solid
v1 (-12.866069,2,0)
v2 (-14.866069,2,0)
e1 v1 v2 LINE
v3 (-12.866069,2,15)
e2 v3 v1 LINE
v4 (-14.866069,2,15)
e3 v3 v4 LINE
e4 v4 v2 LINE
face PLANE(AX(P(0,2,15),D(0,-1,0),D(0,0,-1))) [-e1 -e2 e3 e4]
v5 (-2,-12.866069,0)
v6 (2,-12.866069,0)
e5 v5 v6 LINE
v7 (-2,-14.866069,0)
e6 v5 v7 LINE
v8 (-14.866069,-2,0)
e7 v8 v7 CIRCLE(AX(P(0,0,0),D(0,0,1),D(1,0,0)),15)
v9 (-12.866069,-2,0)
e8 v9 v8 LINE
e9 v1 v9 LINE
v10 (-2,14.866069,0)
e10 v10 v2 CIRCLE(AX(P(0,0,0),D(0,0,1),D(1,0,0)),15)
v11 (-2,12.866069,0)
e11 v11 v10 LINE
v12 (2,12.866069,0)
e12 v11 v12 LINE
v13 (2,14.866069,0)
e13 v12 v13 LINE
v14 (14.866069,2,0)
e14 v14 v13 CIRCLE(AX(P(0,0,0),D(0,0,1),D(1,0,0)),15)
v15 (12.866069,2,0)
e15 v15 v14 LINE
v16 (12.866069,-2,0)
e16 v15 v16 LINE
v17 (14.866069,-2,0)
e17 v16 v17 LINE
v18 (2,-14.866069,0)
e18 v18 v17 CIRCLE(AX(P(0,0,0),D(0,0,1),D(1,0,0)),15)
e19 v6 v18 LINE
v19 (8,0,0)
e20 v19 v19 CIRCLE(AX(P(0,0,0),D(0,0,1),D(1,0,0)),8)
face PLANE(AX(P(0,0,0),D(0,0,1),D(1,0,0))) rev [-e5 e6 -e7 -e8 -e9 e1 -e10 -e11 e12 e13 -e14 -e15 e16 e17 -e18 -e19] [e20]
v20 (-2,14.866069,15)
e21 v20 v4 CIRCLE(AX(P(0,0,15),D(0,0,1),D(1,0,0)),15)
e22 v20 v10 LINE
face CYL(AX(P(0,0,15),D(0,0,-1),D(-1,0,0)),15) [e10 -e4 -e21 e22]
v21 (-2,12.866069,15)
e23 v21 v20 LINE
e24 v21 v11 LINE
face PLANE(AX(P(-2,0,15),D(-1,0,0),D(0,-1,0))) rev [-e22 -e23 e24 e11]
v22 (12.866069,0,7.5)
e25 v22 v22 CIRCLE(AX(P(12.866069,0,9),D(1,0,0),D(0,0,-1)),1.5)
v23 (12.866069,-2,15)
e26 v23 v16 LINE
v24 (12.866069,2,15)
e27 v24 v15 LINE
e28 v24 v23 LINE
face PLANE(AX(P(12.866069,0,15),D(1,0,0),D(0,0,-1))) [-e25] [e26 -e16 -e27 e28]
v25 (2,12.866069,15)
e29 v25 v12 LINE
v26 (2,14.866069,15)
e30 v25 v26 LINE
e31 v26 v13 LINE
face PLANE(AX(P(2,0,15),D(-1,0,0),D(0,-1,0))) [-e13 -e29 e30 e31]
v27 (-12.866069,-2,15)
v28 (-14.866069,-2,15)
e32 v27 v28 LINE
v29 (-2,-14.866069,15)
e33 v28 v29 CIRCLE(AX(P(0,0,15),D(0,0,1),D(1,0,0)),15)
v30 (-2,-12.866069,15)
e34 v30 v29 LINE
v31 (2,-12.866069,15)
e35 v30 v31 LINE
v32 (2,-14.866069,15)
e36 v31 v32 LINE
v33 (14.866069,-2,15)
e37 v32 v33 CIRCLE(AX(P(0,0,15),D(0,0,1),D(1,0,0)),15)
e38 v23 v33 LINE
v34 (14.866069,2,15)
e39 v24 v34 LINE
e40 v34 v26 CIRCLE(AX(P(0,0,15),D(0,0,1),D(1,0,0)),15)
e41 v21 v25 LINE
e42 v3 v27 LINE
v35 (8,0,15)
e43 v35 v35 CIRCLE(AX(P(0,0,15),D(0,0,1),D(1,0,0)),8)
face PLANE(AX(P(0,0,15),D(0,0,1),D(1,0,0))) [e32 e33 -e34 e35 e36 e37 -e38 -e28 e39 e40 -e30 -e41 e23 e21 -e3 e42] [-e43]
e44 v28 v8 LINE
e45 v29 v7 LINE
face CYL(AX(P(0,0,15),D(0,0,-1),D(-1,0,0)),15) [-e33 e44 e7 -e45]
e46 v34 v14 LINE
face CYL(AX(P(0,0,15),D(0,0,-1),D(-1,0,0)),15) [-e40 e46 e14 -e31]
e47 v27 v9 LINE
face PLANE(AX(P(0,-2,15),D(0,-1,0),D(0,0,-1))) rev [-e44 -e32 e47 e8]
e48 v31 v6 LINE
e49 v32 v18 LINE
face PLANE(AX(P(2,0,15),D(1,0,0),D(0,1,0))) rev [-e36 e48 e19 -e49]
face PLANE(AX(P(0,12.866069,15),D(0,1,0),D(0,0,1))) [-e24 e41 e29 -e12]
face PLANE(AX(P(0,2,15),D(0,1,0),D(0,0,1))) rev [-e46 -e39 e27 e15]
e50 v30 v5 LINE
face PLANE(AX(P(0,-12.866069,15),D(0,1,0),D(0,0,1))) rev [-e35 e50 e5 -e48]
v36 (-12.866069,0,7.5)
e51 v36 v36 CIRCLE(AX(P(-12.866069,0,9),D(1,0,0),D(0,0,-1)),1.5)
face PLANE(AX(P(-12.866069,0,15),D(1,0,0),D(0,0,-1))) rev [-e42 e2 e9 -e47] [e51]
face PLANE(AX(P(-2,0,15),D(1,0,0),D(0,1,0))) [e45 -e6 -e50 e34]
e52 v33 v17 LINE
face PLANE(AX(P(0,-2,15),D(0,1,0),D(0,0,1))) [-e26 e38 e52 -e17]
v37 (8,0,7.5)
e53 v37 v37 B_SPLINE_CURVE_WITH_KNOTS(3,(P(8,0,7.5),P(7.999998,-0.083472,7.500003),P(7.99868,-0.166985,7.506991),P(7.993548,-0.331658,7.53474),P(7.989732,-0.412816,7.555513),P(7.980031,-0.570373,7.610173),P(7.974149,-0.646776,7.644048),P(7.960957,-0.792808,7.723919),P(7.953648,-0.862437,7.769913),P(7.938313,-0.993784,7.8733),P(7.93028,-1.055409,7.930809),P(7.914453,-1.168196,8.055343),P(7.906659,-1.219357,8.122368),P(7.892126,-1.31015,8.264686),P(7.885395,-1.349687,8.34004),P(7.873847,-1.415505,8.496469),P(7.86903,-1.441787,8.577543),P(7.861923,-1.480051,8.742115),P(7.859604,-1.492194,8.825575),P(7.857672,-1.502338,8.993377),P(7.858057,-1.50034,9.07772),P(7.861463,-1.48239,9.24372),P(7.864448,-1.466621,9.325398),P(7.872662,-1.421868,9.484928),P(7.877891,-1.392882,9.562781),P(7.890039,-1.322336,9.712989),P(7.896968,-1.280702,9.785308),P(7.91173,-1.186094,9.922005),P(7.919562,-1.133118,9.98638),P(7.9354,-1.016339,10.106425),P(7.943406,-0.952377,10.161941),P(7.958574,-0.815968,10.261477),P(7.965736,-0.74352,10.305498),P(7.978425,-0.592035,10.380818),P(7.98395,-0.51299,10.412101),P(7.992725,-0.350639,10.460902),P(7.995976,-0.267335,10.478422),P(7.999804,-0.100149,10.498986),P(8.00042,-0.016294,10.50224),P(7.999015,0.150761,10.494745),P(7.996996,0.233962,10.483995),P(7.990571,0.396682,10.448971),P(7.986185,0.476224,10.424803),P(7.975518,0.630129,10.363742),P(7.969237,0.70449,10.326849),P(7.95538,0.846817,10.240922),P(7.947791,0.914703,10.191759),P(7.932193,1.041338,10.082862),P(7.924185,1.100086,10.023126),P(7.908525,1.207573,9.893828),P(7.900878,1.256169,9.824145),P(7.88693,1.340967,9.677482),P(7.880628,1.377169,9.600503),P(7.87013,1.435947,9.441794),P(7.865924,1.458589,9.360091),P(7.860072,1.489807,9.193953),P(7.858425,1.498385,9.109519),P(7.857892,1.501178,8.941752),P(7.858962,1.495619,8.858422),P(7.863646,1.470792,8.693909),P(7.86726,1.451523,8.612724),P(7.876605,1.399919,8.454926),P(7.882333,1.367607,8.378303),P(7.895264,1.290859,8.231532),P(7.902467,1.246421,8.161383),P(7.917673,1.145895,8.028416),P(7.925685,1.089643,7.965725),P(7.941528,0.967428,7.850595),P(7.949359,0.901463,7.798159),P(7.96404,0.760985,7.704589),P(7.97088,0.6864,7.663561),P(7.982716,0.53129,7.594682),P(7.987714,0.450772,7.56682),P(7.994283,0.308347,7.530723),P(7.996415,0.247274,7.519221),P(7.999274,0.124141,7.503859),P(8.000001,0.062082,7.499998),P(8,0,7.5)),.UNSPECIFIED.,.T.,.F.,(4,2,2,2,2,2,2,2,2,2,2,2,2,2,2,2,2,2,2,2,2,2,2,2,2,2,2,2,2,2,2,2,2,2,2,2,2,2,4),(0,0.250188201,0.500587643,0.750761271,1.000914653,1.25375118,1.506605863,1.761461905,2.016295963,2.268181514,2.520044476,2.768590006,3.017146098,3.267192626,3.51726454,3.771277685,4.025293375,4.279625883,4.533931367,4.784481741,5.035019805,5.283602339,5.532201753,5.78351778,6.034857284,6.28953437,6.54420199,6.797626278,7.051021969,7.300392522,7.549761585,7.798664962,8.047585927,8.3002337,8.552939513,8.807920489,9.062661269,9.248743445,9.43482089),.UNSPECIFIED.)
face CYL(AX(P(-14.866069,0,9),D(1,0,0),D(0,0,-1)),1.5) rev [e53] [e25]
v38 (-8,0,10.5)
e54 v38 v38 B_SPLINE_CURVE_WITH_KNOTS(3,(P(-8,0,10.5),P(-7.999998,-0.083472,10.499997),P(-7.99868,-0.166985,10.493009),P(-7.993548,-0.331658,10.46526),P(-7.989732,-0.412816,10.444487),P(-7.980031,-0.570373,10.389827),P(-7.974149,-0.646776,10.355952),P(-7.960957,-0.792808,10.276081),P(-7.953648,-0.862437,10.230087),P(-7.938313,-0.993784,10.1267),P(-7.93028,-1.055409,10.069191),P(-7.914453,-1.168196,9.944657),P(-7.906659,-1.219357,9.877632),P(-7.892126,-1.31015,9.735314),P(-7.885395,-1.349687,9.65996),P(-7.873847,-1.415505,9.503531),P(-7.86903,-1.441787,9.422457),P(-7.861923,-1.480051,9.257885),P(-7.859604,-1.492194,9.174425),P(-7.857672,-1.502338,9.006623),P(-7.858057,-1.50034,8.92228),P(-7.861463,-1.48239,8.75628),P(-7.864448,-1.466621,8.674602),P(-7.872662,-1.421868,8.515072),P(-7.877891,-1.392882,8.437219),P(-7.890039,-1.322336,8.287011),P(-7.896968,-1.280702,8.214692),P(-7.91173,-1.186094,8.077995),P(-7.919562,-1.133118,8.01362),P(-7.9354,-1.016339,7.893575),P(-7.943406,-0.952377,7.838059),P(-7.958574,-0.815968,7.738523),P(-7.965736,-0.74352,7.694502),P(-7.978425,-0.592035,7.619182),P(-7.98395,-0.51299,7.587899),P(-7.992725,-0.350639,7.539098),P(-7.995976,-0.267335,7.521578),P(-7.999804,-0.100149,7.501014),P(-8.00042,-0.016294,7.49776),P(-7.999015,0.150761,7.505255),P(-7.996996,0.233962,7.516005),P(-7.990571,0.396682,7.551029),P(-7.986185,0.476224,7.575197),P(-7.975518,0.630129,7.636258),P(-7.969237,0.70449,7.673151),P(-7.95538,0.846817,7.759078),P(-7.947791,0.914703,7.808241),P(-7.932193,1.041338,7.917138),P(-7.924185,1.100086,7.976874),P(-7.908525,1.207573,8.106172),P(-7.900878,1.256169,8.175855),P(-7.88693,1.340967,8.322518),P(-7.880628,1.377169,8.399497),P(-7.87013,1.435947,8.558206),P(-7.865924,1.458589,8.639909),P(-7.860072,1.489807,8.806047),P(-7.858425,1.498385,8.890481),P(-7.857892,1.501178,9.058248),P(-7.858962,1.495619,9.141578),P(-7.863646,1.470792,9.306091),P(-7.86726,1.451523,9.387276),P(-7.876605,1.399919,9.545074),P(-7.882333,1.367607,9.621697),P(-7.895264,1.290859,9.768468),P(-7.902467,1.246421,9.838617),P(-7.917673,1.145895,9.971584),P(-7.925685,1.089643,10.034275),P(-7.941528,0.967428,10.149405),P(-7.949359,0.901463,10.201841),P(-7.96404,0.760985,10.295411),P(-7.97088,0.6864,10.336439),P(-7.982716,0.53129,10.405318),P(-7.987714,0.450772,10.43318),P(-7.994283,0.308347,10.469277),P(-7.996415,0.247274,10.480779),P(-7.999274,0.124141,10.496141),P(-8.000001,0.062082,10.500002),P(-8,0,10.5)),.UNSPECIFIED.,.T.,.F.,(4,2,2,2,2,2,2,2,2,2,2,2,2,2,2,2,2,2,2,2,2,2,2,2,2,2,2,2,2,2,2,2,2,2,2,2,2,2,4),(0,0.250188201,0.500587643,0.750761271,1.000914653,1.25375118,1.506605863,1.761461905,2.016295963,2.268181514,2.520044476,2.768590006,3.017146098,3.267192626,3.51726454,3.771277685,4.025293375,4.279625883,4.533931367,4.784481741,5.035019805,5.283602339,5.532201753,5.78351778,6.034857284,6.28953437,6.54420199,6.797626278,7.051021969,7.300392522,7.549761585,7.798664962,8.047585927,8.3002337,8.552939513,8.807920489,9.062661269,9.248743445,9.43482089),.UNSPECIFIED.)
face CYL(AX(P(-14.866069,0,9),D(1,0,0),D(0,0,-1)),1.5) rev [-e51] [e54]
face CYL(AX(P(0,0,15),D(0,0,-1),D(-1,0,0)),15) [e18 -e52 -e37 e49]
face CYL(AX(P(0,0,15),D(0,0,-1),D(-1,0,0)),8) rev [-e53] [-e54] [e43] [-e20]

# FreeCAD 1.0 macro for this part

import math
import FreeCAD as App
import Part
import Sketcher
from FreeCAD import Vector

doc = App.newDocument("Part")
params = doc.addObject("Spreadsheet::Sheet", "Params")
for row, (alias, value) in enumerate([
    ("sketch1_diameter", "16 mm"),
    ("sketch1_radius", "15 mm"),
    ("sketch1_width", "4 mm"),
    ("sketch1_width2", "2 mm"),
    ("pad1_length", "15 mm"),
    ("sketch2_diameter", "3 mm"),
], start=1):
    params.set(f"A{row}", alias)
    params.set(f"B{row}", "=" + value)
    params.setAlias(f"B{row}", alias)

body = doc.addObject("PartDesign::Body", "Body")

# Sketch on XY plane
sketch1 = body.newObject("Sketcher::SketchObject", "Sketch")
sketch1.AttachmentSupport = (doc.getObject("XY_Plane"), [""])
sketch1.MapMode = "FlatFace"
sketch1.addGeometry([
    Part.LineSegment(Vector(2, 12.866069, 0), Vector(-2, 12.866069, 0)),  # 0
    Part.LineSegment(Vector(-2, 12.866069, 0), Vector(-2, 14.866069, 0)),  # 1
    Part.ArcOfCircle(Part.Circle(Vector(0, 0, 0), Vector(0, 0, 1), 15), math.radians(97.662256), math.radians(172.337744)),  # 2
    Part.LineSegment(Vector(-14.866069, 2, 0), Vector(-12.866069, 2, 0)),  # 3
    Part.LineSegment(Vector(-12.866069, 2, 0), Vector(-12.866069, -2, 0)),  # 4
    Part.LineSegment(Vector(-12.866069, -2, 0), Vector(-14.866069, -2, 0)),  # 5
    Part.ArcOfCircle(Part.Circle(Vector(0, 0, 0), Vector(0, 0, 1), 15), math.radians(-172.337744), math.radians(-97.662256)),  # 6
    Part.LineSegment(Vector(-2, -14.866069, 0), Vector(-2, -12.866069, 0)),  # 7
    Part.LineSegment(Vector(-2, -12.866069, 0), Vector(2, -12.866069, 0)),  # 8
    Part.LineSegment(Vector(2, -12.866069, 0), Vector(2, -14.866069, 0)),  # 9
    Part.ArcOfCircle(Part.Circle(Vector(0, 0, 0), Vector(0, 0, 1), 15), math.radians(-82.337744), math.radians(-7.662256)),  # 10
    Part.LineSegment(Vector(14.866069, -2, 0), Vector(12.866069, -2, 0)),  # 11
    Part.LineSegment(Vector(12.866069, -2, 0), Vector(12.866069, 2, 0)),  # 12
    Part.LineSegment(Vector(12.866069, 2, 0), Vector(14.866069, 2, 0)),  # 13
    Part.ArcOfCircle(Part.Circle(Vector(0, 0, 0), Vector(0, 0, 1), 15), math.radians(7.662256), math.radians(82.337744)),  # 14
    Part.LineSegment(Vector(2, 14.866069, 0), Vector(2, 12.866069, 0)),  # 15
    Part.Circle(Vector(0, 0, 0), Vector(0, 0, 1), 8),  # 16
], False)
sketch1.addConstraint([
    Sketcher.Constraint("Coincident", 0, 2, 1, 1),
    Sketcher.Constraint("Coincident", 1, 2, 2, 1),
    Sketcher.Constraint("Coincident", 2, 2, 3, 1),
    Sketcher.Constraint("Coincident", 3, 2, 4, 1),
    Sketcher.Constraint("Coincident", 4, 2, 5, 1),
    Sketcher.Constraint("Coincident", 5, 2, 6, 1),
    Sketcher.Constraint("Coincident", 6, 2, 7, 1),
    Sketcher.Constraint("Coincident", 7, 2, 8, 1),
    Sketcher.Constraint("Coincident", 8, 2, 9, 1),
    Sketcher.Constraint("Coincident", 9, 2, 10, 1),
    Sketcher.Constraint("Coincident", 10, 2, 11, 1),
    Sketcher.Constraint("Coincident", 11, 2, 12, 1),
    Sketcher.Constraint("Coincident", 12, 2, 13, 1),
    Sketcher.Constraint("Coincident", 13, 2, 14, 1),
    Sketcher.Constraint("Coincident", 14, 2, 15, 1),
    Sketcher.Constraint("Coincident", 15, 2, 0, 1),
    Sketcher.Constraint("Horizontal", 0),
    Sketcher.Constraint("Vertical", 1),
    Sketcher.Constraint("Horizontal", 3),
    Sketcher.Constraint("Vertical", 4),
    Sketcher.Constraint("Horizontal", 5),
    Sketcher.Constraint("Vertical", 7),
    Sketcher.Constraint("Horizontal", 8),
    Sketcher.Constraint("Vertical", 9),
    Sketcher.Constraint("Horizontal", 11),
    Sketcher.Constraint("Vertical", 12),
    Sketcher.Constraint("Horizontal", 13),
    Sketcher.Constraint("Vertical", 15),
    Sketcher.Constraint("Coincident", 2, 3, -1, 1),
    Sketcher.Constraint("Coincident", 6, 3, -1, 1),
    Sketcher.Constraint("Coincident", 10, 3, -1, 1),
    Sketcher.Constraint("Coincident", 14, 3, -1, 1),
    Sketcher.Constraint("Coincident", 16, 3, -1, 1),
    Sketcher.Constraint("Equal", 2, 6),
    Sketcher.Constraint("Equal", 6, 10),
    Sketcher.Constraint("Equal", 10, 14),
    Sketcher.Constraint("Symmetric", 0, 2, 8, 2, -1, 1),
    Sketcher.Constraint("Symmetric", 3, 2, 11, 2, -1, 1),
    Sketcher.Constraint("Horizontal", 6, 2, 9, 2),
    Sketcher.Constraint("Horizontal", 5, 2, 10, 2),
    Sketcher.Constraint("Horizontal", 3, 2, 12, 2),
    Sketcher.Constraint("Horizontal", 1, 2, 14, 2),
    Sketcher.Constraint("Equal", 13, 1),
    Sketcher.Constraint("Equal", 8, 4),
    Sketcher.Constraint("Diameter", 16, 16.0),
    Sketcher.Constraint("Radius", 2, 15.0),
    Sketcher.Constraint("DistanceX", 0, 2, 0, 1, 4.0),
    Sketcher.Constraint("DistanceX", 3, 1, 3, 2, 2.0),
])
sketch1.setExpression("Constraints[44]", "Params.sketch1_diameter")
sketch1.setExpression("Constraints[45]", "Params.sketch1_radius")
sketch1.setExpression("Constraints[46]", "Params.sketch1_width")
sketch1.setExpression("Constraints[47]", "Params.sketch1_width2")
pad1 = body.newObject("PartDesign::Pad", "Pad")
pad1.Profile = sketch1
pad1.setExpression("Length", "Params.pad1_length")

# Sketch on YZ plane
sketch2 = body.newObject("Sketcher::SketchObject", "Sketch001")
sketch2.AttachmentSupport = (doc.getObject("YZ_Plane"), [""])
sketch2.MapMode = "FlatFace"
sketch2.addGeometry(Part.Circle(Vector(0, 9, 0), Vector(0, 0, 1), 1.5), False)
sketch2.addConstraint([
    Sketcher.Constraint("PointOnObject", 0, 3, -2),
    Sketcher.Constraint("Diameter", 0, 3.0),
    Sketcher.Constraint("DistanceY", -1, 1, 0, 3, 9.0),
])
sketch2.setExpression("Constraints[1]", "Params.sketch2_diameter")
pocket1 = body.newObject("PartDesign::Pocket", "Pocket")
pocket1.Profile = sketch2
pocket1.Type = "ThroughAll"
pocket1.Midplane = True

doc.recompute()
